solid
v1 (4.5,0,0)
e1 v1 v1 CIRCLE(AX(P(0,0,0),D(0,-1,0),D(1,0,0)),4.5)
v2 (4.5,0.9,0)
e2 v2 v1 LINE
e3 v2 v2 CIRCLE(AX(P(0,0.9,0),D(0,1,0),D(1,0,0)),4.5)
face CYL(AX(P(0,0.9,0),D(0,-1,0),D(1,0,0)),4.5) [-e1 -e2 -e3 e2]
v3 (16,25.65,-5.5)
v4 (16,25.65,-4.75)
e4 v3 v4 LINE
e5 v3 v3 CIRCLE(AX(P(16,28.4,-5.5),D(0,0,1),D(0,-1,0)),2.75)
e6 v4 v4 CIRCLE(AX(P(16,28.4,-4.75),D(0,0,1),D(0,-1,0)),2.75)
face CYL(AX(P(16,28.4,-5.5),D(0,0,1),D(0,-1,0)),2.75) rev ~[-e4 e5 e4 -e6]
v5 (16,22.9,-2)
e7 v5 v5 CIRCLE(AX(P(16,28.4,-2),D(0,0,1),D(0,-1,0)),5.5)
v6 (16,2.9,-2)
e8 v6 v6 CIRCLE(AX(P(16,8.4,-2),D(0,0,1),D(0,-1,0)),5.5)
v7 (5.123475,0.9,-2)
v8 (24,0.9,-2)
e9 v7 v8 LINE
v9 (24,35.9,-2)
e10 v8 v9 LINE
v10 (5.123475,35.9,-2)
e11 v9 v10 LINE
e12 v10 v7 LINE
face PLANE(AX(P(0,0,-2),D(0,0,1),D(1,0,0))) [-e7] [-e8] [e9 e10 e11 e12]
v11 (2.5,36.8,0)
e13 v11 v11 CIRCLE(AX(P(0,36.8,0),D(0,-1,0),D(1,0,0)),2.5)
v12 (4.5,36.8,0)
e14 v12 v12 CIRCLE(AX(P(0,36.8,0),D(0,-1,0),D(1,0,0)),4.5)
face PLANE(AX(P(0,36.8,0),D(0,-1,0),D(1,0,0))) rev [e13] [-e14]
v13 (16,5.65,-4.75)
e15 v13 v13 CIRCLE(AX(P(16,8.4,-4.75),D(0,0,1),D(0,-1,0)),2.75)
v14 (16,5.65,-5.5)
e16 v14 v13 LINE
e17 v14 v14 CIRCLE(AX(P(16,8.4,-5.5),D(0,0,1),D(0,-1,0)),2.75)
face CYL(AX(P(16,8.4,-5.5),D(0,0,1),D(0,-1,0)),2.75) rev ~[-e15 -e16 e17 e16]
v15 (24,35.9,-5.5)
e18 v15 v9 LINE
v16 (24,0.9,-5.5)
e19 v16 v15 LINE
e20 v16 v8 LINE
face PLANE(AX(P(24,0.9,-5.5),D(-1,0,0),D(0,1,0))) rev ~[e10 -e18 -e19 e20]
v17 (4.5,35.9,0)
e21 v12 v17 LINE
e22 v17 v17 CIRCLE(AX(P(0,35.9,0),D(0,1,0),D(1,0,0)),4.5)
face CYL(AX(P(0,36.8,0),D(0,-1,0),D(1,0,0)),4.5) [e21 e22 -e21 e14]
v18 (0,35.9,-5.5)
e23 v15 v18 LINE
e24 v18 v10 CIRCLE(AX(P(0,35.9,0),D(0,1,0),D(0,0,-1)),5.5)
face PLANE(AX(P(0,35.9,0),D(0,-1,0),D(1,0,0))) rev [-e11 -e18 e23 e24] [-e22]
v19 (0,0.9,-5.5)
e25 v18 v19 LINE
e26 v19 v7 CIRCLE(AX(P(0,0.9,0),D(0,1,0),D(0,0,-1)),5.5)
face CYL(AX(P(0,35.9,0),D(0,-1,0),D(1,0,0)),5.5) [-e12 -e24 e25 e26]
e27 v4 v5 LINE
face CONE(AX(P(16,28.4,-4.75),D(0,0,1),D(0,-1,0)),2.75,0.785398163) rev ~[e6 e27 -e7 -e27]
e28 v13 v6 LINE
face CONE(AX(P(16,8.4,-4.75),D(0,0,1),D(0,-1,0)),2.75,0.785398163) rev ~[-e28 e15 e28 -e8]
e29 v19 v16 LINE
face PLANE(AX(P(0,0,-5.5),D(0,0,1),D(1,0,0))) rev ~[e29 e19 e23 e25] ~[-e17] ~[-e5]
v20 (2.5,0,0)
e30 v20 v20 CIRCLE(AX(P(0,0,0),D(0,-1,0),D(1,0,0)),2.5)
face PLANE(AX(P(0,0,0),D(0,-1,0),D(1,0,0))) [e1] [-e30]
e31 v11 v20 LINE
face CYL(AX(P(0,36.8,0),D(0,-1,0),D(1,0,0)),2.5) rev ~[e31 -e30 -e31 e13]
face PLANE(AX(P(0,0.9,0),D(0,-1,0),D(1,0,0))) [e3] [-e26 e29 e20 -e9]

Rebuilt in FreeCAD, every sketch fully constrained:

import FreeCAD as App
import Part
import Sketcher
Q = App.Units.Quantity


def add_polygon(sketch, points):
    """Adds a closed chain of lines whose ends are joined by coincident constraints."""
    first, n = sketch.GeometryCount, len(points)
    for a, b in zip(points, points[1:] + points[:1]):
        sketch.addGeometry(Part.LineSegment(App.Vector(*a, 0), App.Vector(*b, 0)), False)
    for i in range(n):
        sketch.addConstraint(Sketcher.Constraint("Coincident", first + i, 2, first + (i + 1) % n, 1))

doc = App.newDocument("Part")
body = doc.addObject("PartDesign::Body", "Body")

# Sketch on XY plane
sketch1 = doc.addObject("Sketcher::SketchObject", "Sketch")
body.addObject(sketch1)
sketch1.AttachmentSupport = (doc.XY_Plane, [""])
sketch1.MapMode = "FlatFace"
add_polygon(sketch1, [(0, 36.8), (0, 0), (4.5, 0), (4.5, 0.9), (5.5, 0.9), (5.5, 35.9), (4.5, 35.9), (4.5, 36.8)])  # lines 0-7
sketch1.addConstraint([
    Sketcher.Constraint("Vertical", 0),
    Sketcher.Constraint("Horizontal", 1),
    Sketcher.Constraint("Vertical", 2),
    Sketcher.Constraint("Horizontal", 3),
    Sketcher.Constraint("Vertical", 4),
    Sketcher.Constraint("Horizontal", 5),
    Sketcher.Constraint("Vertical", 6),
    Sketcher.Constraint("Horizontal", 7),
    Sketcher.Constraint("Coincident", 0, 2, -1, 1),
    Sketcher.Constraint("Vertical", 2, 2, 5, 2),
    Sketcher.Constraint("Equal", 2, 6),
    Sketcher.Constraint("DistanceX", 3, 1, 3, 2, 1.0),
    Sketcher.Constraint("DistanceY", 4, 1, 4, 2, 35.0),
    Sketcher.Constraint("DistanceX", 1, 1, 1, 2, 4.5),
    Sketcher.Constraint("DistanceY", 0, 2, 0, 1, 36.8),
])
revolution = doc.addObject("PartDesign::Revolution", "Revolution")
body.addObject(revolution)
revolution.Profile = sketch1
revolution.ReferenceAxis = (sketch1, ["V_Axis"])
revolution.Angle = 360

# Sketch on XY plane
sketch2 = doc.addObject("Sketcher::SketchObject", "Sketch001")
body.addObject(sketch2)
sketch2.AttachmentSupport = (doc.XY_Plane, [""])
sketch2.MapMode = "FlatFace"
sketch2.AttachmentOffset = App.Placement(App.Vector(0, 0, -5.5), App.Rotation())
add_polygon(sketch2, [(0, 36), (0, 1), (24, 1), (24, 36)])  # lines 0-3
sketch2.addConstraint([
    Sketcher.Constraint("Vertical", 0),
    Sketcher.Constraint("Horizontal", 1),
    Sketcher.Constraint("Vertical", 2),
    Sketcher.Constraint("Horizontal", 3),
    Sketcher.Constraint("PointOnObject", 0, 2, -2),
    Sketcher.Constraint("DistanceX", 1, 1, 1, 2, 24.0),
    Sketcher.Constraint("DistanceY", 0, 2, 0, 1, 35.0),
    Sketcher.Constraint("DistanceY", -1, 1, 0, 2, 0.9),
])
pad1 = doc.addObject("PartDesign::Pad", "Pad")
body.addObject(pad1)
pad1.Profile = sketch2
pad1.Length = 3.5

# Sketch on YZ plane
sketch3 = doc.addObject("Sketcher::SketchObject", "Sketch002")
body.addObject(sketch3)
sketch3.AttachmentSupport = (doc.YZ_Plane, [""])
sketch3.MapMode = "FlatFace"
sketch3.AttachmentOffset = App.Placement(App.Vector(0, 0, 16), App.Rotation())
add_polygon(sketch3, [(8.4, -5.5), (8.4, -2), (2.9, -2), (5.7, -4.8), (5.7, -5.5)])  # lines 0-4
sketch3.addGeometry(Part.LineSegment(App.Vector(8.4, -5.5, 0), App.Vector(8.4, -2, 0)), True)  # axis
sketch3.addConstraint([
    Sketcher.Constraint("Vertical", 0),
    Sketcher.Constraint("Horizontal", 1),
    Sketcher.Constraint("Vertical", 3),
    Sketcher.Constraint("Horizontal", 4),
    Sketcher.Constraint("Vertical", 5),
    Sketcher.Constraint("Coincident", 5, 1, 4, 2),
    Sketcher.Constraint("Horizontal", 1, 2, 5, 2),
    Sketcher.Constraint("Angle", 2, Q("-45 deg")),
    Sketcher.Constraint("DistanceX", 1, 2, 1, 1, 5.5),
    Sketcher.Constraint("DistanceY", 0, 1, 0, 2, 3.5),
    Sketcher.Constraint("DistanceY", 0, 2, -1, 1, 2.0),
    Sketcher.Constraint("DistanceX", 4, 1, 4, 2, 2.75),
    Sketcher.Constraint("DistanceX", -1, 1, 0, 2, 8.4),
])
groove = doc.addObject("PartDesign::Groove", "Groove")
body.addObject(groove)
groove.Profile = sketch3
groove.ReferenceAxis = (sketch3, ["Axis0"])
groove.Angle = 360

# Sketch on YZ plane
sketch4 = doc.addObject("Sketcher::SketchObject", "Sketch003")
body.addObject(sketch4)
sketch4.AttachmentSupport = (doc.YZ_Plane, [""])
sketch4.MapMode = "FlatFace"
sketch4.AttachmentOffset = App.Placement(App.Vector(0, 0, 16), App.Rotation())
add_polygon(sketch4, [(28.4, -5.5), (28.4, -2), (22.9, -2), (25.6, -4.8), (25.6, -5.5)])  # lines 0-4
sketch4.addGeometry(Part.LineSegment(App.Vector(28.4, -5.5, 0), App.Vector(28.4, -2, 0)), True)  # axis
sketch4.addConstraint([
    Sketcher.Constraint("Vertical", 0),
    Sketcher.Constraint("Horizontal", 1),
    Sketcher.Constraint("Vertical", 3),
    Sketcher.Constraint("Horizontal", 4),
    Sketcher.Constraint("Vertical", 5),
    Sketcher.Constraint("Coincident", 5, 1, 4, 2),
    Sketcher.Constraint("Horizontal", 1, 2, 5, 2),
    Sketcher.Constraint("Angle", 2, Q("-45 deg")),
    Sketcher.Constraint("DistanceX", 1, 2, 1, 1, 5.5),
    Sketcher.Constraint("DistanceY", 0, 1, 0, 2, 3.5),
    Sketcher.Constraint("DistanceY", 0, 2, -1, 1, 2.0),
    Sketcher.Constraint("DistanceX", 4, 1, 4, 2, 2.75),
    Sketcher.Constraint("DistanceX", -1, 1, 0, 2, 28.4),
])
groove2 = doc.addObject("PartDesign::Groove", "Groove001")
body.addObject(groove2)
groove2.Profile = sketch4
groove2.ReferenceAxis = (sketch4, ["Axis0"])
groove2.Angle = 360

# Sketch on XY plane
sketch5 = doc.addObject("Sketcher::SketchObject", "Sketch004")
body.addObject(sketch5)
sketch5.AttachmentSupport = (doc.XY_Plane, [""])
sketch5.MapMode = "FlatFace"
add_polygon(sketch5, [(0, 36.8), (0, 0), (2.5, 0), (2.5, 36.8)])  # lines 0-3
sketch5.addConstraint([
    Sketcher.Constraint("Vertical", 0),
    Sketcher.Constraint("Horizontal", 1),
    Sketcher.Constraint("Vertical", 2),
    Sketcher.Constraint("Horizontal", 3),
    Sketcher.Constraint("Coincident", 0, 2, -1, 1),
    Sketcher.Constraint("DistanceX", 1, 1, 1, 2, 2.5),
    Sketcher.Constraint("DistanceY", 0, 2, 0, 1, 36.8),
])
groove3 = doc.addObject("PartDesign::Groove", "Groove002")
body.addObject(groove3)
groove3.Profile = sketch5
groove3.ReferenceAxis = (sketch5, ["V_Axis"])
groove3.Angle = 360

doc.recompute()
